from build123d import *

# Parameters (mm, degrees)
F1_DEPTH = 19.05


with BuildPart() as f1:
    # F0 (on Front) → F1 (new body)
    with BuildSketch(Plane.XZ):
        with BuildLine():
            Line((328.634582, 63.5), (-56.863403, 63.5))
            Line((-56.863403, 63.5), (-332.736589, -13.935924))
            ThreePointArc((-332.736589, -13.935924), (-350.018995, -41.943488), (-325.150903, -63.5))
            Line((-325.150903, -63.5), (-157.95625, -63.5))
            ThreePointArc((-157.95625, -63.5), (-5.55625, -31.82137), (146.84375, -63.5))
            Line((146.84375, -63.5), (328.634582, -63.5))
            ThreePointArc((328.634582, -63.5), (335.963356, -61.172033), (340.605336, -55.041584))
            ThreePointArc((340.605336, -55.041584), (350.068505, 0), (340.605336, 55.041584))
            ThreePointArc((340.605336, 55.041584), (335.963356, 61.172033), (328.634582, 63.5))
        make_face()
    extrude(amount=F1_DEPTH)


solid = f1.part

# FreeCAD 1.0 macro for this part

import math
import FreeCAD as App
import Part
import Sketcher
Q = App.Units.Quantity

doc = App.newDocument("Part")
body = doc.addObject("PartDesign::Body", "Body")

# Sketch on XZ plane
sketch1 = body.newObject("Sketcher::SketchObject", "Sketch")
sketch1.AttachmentSupport = (doc.getObject("XZ_Plane"), [""])
sketch1.MapMode = "FlatFace"
sketch1.addGeometry([
    Part.LineSegment(App.Vector(328.634582, 63.5, 0), App.Vector(-56.863403, 63.5, 0)),  # 0
    Part.LineSegment(App.Vector(-56.863403, 63.5, 0), App.Vector(-332.736589, -13.935924, 0)),  # 1
    Part.ArcOfCircle(Part.Circle(App.Vector(-324.910975, -38.100754, 0), App.Vector(0, 0, 1), 25.400379), math.radians(107.944188), math.radians(269.458786)),  # 2
    Part.LineSegment(App.Vector(-325.150903, -63.5, 0), App.Vector(-157.95625, -63.5, 0)),  # 3
    Part.ArcOfCircle(Part.Circle(App.Vector(-5.55625, -414.24472, 0), App.Vector(0, 0, 1), 382.42335), math.radians(66.514859), math.radians(113.485141)),  # 4
    Part.LineSegment(App.Vector(146.84375, -63.5, 0), App.Vector(328.634582, -63.5, 0)),  # 5
    Part.ArcOfCircle(Part.Circle(App.Vector(328.634582, -50.800001, 0), App.Vector(0, 0, 1), 12.699999), math.radians(-90), math.radians(-19.510703)),  # 6
    Part.ArcOfCircle(Part.Circle(App.Vector(185.264963, 0, 0), App.Vector(0, 0, 1), 164.803542), math.radians(-19.510708), math.radians(19.510708)),  # 7
    Part.ArcOfCircle(Part.Circle(App.Vector(328.634582, 50.800001, 0), App.Vector(0, 0, 1), 12.699999), math.radians(19.510703), math.radians(90)),  # 8
], False)
sketch1.addConstraint([
    Sketcher.Constraint("Coincident", 0, 2, 1, 1),
    Sketcher.Constraint("Coincident", 1, 2, 2, 1),
    Sketcher.Constraint("Coincident", 2, 2, 3, 1),
    Sketcher.Constraint("Coincident", 3, 2, 4, 2),
    Sketcher.Constraint("Coincident", 4, 1, 5, 1),
    Sketcher.Constraint("Tangent", 5, 2, 6, 1),
    Sketcher.Constraint("Tangent", 6, 2, 7, 1),
    Sketcher.Constraint("Tangent", 7, 2, 8, 1),
    Sketcher.Constraint("Tangent", 8, 2, 0, 1),
    Sketcher.Constraint("Horizontal", 0),
    Sketcher.Constraint("Horizontal", 3),
    Sketcher.Constraint("Horizontal", 5),
    Sketcher.Constraint("Equal", 6, 8),
    Sketcher.Constraint("Symmetric", 6, 3, 8, 3, -1),
    Sketcher.Constraint("Horizontal", 3, 2, 4, 1),
    Sketcher.Constraint("Radius", 6, Q("0.5 in")),
    Sketcher.Constraint("DistanceY", 6, 3, -1, 1, Q("2 in")),
    Sketcher.Constraint("DistanceX", 3, 2, 4, 1, Q("12 in")),
    Sketcher.Constraint("DistanceX", 4, 3, -1, 1, Q("0.21875 in")),
    Sketcher.Constraint("Radius", 2, 25.400379),
    Sketcher.Constraint("Radius", 4, 382.42335),
    Sketcher.Constraint("Radius", 7, 164.803542),
    Sketcher.Constraint("DistanceX", 2, 2, 0, 2, Q("10.5625 in")),
    Sketcher.Constraint("DistanceX", 0, 2, 0, 1, 385.497985),
    Sketcher.Constraint("DistanceX", 3, 1, 3, 2, 167.194653),
    Sketcher.Constraint("DistanceX", 1, 2, -1, 1, 332.736589),
    Sketcher.Constraint("DistanceX", 2, 3, 7, 3, 510.175939),
])
pad1 = body.newObject("PartDesign::Pad", "Pad")
pad1.Profile = sketch1
pad1.Length = Q("0.75 in")

doc.recompute()
